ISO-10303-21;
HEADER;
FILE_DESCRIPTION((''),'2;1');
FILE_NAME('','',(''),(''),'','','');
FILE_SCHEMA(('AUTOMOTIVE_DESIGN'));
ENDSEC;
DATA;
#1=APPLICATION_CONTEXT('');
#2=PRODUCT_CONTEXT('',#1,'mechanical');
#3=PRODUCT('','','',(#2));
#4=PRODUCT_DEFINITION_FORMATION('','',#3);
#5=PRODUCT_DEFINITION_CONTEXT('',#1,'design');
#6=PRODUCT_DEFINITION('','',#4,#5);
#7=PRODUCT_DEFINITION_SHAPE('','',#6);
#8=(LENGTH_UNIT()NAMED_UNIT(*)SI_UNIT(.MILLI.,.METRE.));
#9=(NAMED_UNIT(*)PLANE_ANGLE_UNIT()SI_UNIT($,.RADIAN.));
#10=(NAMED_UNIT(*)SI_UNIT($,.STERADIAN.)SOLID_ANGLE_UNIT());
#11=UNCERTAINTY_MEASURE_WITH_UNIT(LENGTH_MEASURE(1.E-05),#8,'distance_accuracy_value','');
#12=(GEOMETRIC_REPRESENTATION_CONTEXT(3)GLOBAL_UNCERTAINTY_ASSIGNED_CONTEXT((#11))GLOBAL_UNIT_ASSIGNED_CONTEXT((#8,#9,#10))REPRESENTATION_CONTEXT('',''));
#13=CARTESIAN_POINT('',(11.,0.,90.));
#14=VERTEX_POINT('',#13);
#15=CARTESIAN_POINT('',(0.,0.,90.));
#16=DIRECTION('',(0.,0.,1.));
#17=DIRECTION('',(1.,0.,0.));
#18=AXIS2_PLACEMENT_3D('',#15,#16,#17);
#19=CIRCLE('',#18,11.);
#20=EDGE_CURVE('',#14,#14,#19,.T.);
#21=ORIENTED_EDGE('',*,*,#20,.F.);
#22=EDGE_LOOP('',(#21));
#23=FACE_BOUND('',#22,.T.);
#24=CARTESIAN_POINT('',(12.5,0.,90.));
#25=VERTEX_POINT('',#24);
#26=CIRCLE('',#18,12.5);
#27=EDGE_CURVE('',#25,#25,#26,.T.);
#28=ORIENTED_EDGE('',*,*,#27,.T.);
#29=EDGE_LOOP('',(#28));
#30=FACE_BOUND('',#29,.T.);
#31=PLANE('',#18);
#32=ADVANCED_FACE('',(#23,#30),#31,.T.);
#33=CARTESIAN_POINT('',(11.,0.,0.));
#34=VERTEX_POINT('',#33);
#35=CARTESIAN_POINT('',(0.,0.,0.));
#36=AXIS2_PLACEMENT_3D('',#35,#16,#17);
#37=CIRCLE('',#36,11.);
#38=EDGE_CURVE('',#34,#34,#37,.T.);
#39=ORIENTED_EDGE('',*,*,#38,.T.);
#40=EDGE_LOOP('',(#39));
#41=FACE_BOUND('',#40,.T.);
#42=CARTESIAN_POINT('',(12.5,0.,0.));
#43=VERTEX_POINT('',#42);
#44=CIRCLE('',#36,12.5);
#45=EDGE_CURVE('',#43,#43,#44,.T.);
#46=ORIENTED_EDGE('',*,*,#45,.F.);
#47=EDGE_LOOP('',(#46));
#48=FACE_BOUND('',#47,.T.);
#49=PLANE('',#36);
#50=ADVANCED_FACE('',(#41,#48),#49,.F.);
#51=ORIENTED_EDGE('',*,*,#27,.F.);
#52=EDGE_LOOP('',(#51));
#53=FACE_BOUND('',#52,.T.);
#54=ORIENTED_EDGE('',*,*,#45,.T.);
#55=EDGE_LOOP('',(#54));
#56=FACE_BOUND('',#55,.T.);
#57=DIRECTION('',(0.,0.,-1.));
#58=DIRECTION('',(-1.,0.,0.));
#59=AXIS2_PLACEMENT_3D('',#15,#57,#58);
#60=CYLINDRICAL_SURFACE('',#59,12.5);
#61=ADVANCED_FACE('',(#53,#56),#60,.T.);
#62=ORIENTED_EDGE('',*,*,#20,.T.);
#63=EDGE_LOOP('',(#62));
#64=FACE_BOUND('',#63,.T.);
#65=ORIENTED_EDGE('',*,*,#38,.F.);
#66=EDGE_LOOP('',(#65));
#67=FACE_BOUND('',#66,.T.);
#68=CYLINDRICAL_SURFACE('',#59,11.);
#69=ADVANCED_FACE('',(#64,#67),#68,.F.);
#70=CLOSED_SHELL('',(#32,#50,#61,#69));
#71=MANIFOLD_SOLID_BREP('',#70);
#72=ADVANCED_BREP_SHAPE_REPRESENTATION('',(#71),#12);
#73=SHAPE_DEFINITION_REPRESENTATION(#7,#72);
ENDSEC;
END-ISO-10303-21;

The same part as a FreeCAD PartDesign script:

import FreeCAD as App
import Part
import Sketcher
from FreeCAD import Vector
Q = App.Units.Quantity

doc = App.newDocument("Part")
body = doc.addObject("PartDesign::Body", "Body")

sketch1 = body.newObject("Sketcher::SketchObject", "Sketch")
sketch1.AttachmentSupport = (doc.getObject("XY_Plane"), [""])
sketch1.MapMode = "FlatFace"
sketch1.addGeometry([
    Part.Circle(Vector(0, 0, 0), Vector(0, 0, 1), 12.5),
    Part.Circle(Vector(0, 0, 0), Vector(0, 0, 1), 11),
], False)
sketch1.addConstraint([
    Sketcher.Constraint("Coincident", 0, 3, -1, 1),
    Sketcher.Constraint("Coincident", 1, 3, -1, 1),
    Sketcher.Constraint("Diameter", 0, Q("25 mm")),
    Sketcher.Constraint("Diameter", 1, Q("22 mm")),
])
pad1 = body.newObject("PartDesign::Pad", "Pad")
pad1.Profile = sketch1
pad1.Length = 90

doc.recompute()
